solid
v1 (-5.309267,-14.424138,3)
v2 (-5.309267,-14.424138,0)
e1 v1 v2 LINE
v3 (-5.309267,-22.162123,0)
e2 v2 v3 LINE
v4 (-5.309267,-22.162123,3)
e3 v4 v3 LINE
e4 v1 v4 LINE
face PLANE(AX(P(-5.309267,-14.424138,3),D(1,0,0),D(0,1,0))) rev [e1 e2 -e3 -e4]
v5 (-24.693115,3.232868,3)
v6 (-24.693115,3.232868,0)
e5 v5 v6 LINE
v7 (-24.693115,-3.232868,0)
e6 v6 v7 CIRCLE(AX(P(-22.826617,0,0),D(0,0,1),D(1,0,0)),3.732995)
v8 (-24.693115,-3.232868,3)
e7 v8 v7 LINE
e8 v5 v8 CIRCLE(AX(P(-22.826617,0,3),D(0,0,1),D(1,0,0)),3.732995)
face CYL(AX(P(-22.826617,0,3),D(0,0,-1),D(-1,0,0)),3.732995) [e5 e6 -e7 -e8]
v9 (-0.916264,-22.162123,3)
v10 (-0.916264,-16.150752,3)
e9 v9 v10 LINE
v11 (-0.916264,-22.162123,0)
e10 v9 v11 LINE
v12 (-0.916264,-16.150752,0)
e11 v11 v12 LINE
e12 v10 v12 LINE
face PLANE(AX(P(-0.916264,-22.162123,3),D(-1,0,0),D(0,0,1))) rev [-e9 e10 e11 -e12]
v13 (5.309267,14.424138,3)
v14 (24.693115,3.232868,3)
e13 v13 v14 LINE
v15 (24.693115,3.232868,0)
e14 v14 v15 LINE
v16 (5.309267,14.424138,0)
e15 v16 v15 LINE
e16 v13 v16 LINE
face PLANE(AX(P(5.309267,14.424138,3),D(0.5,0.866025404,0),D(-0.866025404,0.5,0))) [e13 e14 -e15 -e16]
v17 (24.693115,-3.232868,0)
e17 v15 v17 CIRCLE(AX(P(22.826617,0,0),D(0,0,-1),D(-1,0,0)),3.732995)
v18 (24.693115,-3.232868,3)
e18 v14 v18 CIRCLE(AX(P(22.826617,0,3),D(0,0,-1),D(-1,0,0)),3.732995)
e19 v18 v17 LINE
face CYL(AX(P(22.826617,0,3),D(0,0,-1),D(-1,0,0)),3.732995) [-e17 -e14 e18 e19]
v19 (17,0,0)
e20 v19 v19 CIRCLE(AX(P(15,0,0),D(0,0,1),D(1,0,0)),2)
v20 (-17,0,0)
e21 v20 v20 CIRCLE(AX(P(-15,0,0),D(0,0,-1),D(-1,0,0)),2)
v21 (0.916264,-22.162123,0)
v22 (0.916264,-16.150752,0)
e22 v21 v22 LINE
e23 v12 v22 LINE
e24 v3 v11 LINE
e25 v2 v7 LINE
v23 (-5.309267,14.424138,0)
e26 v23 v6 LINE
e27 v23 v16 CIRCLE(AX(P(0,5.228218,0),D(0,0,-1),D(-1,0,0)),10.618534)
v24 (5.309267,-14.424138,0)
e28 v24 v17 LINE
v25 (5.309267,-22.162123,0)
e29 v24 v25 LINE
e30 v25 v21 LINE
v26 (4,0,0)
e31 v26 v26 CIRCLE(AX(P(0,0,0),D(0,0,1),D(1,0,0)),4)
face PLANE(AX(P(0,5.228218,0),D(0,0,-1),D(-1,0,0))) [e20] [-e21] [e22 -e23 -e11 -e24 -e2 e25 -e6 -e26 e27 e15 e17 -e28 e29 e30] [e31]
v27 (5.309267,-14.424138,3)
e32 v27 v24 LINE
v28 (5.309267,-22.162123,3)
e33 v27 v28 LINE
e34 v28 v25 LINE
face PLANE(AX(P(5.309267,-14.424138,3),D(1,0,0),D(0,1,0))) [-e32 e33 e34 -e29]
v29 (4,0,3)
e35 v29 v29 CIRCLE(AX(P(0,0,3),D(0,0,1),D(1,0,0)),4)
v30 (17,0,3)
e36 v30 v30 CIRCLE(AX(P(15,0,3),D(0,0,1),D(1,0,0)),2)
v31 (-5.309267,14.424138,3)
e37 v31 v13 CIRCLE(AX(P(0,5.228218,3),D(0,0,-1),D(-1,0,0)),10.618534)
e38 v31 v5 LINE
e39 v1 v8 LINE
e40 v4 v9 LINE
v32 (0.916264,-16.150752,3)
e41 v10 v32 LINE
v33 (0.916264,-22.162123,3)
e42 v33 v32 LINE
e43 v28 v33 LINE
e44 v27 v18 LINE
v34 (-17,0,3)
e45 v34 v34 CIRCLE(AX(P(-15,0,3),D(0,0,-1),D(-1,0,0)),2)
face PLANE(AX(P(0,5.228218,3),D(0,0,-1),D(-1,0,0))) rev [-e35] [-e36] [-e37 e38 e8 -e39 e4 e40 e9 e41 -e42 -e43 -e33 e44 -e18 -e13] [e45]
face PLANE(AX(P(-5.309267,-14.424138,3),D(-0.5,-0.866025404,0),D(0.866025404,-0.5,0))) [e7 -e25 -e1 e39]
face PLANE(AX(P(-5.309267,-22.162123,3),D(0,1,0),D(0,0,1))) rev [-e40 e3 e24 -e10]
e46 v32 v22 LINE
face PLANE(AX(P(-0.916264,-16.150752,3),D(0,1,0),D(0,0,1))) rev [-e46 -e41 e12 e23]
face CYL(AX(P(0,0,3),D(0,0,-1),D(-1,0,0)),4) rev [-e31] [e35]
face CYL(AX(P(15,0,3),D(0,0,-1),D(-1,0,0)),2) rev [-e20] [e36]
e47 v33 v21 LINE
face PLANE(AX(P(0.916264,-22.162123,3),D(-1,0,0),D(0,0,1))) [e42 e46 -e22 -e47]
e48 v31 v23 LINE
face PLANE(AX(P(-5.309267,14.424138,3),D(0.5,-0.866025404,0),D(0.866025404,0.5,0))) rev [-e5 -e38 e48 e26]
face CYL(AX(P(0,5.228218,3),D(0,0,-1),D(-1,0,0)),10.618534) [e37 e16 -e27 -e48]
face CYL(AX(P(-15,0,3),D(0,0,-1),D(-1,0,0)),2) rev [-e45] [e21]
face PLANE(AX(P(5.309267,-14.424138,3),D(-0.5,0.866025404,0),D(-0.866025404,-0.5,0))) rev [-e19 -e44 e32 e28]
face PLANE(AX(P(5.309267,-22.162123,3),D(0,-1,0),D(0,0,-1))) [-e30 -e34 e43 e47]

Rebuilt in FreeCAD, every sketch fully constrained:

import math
import FreeCAD as App
import Part
import Sketcher
from FreeCAD import Vector
Q = App.Units.Quantity

doc = App.newDocument("Part")
params = doc.addObject("Spreadsheet::Sheet", "Params")
for row, (alias, value) in enumerate([
    ("sketch1_diameter", "4 mm"),
    ("sketch1_diameter2", "8 mm"),
    ("pad1_length", "3 mm"),
], start=1):
    params.set(f"A{row}", alias)
    params.set(f"B{row}", "=" + value)
    params.setAlias(f"B{row}", alias)

body = doc.addObject("PartDesign::Body", "Body")

# Sketch on XY plane
sketch1 = body.newObject("Sketcher::SketchObject", "Sketch")
sketch1.AttachmentSupport = (doc.getObject("XY_Plane"), [""])
sketch1.MapMode = "FlatFace"
sketch1.addGeometry(Part.LineSegment(Vector(24.7, 3.2, 0), Vector(5.3, 14.4, 0)), False)
sketch1.addGeometry(Part.ArcOfCircle(Part.Circle(Vector(0, 5.2, 0), Vector(0, 0, 1), 10.6), math.radians(60), math.radians(120)), False)
sketch1.addGeometry(Part.LineSegment(Vector(-5.3, 14.4, 0), Vector(-24.7, 3.2, 0)), False)
sketch1.addGeometry(Part.ArcOfCircle(Part.Circle(Vector(-22.8, 0, 0), Vector(0, 0, 1), 3.7), math.radians(120), math.radians(240)), False)
sketch1.addGeometry(Part.LineSegment(Vector(-24.7, -3.2, 0), Vector(-5.3, -14.4, 0)), False)
sketch1.addGeometry(Part.LineSegment(Vector(-5.3, -14.4, 0), Vector(-5.3, -22.2, 0)), False)
sketch1.addGeometry(Part.LineSegment(Vector(-5.3, -22.2, 0), Vector(-0.9, -22.2, 0)), False)
sketch1.addGeometry(Part.LineSegment(Vector(-0.9, -22.2, 0), Vector(-0.9, -16.2, 0)), False)
sketch1.addGeometry(Part.LineSegment(Vector(-0.9, -16.2, 0), Vector(0.9, -16.2, 0)), False)
sketch1.addGeometry(Part.LineSegment(Vector(0.9, -16.2, 0), Vector(0.9, -22.2, 0)), False)
sketch1.addGeometry(Part.LineSegment(Vector(0.9, -22.2, 0), Vector(5.3, -22.2, 0)), False)
sketch1.addGeometry(Part.LineSegment(Vector(5.3, -22.2, 0), Vector(5.3, -14.4, 0)), False)
sketch1.addGeometry(Part.LineSegment(Vector(5.3, -14.4, 0), Vector(24.7, -3.2, 0)), False)
sketch1.addGeometry(Part.ArcOfCircle(Part.Circle(Vector(22.8, 0, 0), Vector(0, 0, 1), 3.7), math.radians(-60), math.radians(60)), False)
sketch1.addGeometry(Part.Circle(Vector(15, 0, 0), Vector(0, 0, 1), 2), False)
sketch1.addGeometry(Part.Circle(Vector(0, 0, 0), Vector(0, 0, 1), 4), False)
sketch1.addGeometry(Part.Circle(Vector(-15, 0, 0), Vector(0, 0, 1), 2), False)
sketch1.addConstraint(Sketcher.Constraint("Tangent", 0, 2, 1, 1))
sketch1.addConstraint(Sketcher.Constraint("Tangent", 1, 2, 2, 1))
sketch1.addConstraint(Sketcher.Constraint("Tangent", 2, 2, 3, 1))
sketch1.addConstraint(Sketcher.Constraint("Tangent", 3, 2, 4, 1))
sketch1.addConstraint(Sketcher.Constraint("Coincident", 4, 2, 5, 1))
sketch1.addConstraint(Sketcher.Constraint("Coincident", 5, 2, 6, 1))
sketch1.addConstraint(Sketcher.Constraint("Coincident", 6, 2, 7, 1))
sketch1.addConstraint(Sketcher.Constraint("Coincident", 7, 2, 8, 1))
sketch1.addConstraint(Sketcher.Constraint("Coincident", 8, 2, 9, 1))
sketch1.addConstraint(Sketcher.Constraint("Coincident", 9, 2, 10, 1))
sketch1.addConstraint(Sketcher.Constraint("Coincident", 10, 2, 11, 1))
sketch1.addConstraint(Sketcher.Constraint("Coincident", 11, 2, 12, 1))
sketch1.addConstraint(Sketcher.Constraint("Tangent", 12, 2, 13, 1))
sketch1.addConstraint(Sketcher.Constraint("Tangent", 13, 2, 0, 1))
sketch1.addConstraint(Sketcher.Constraint("Vertical", 5))
sketch1.addConstraint(Sketcher.Constraint("Horizontal", 6))
sketch1.addConstraint(Sketcher.Constraint("Vertical", 7))
sketch1.addConstraint(Sketcher.Constraint("Horizontal", 8))
sketch1.addConstraint(Sketcher.Constraint("Vertical", 9))
sketch1.addConstraint(Sketcher.Constraint("Horizontal", 10))
sketch1.addConstraint(Sketcher.Constraint("Vertical", 11))
sketch1.addConstraint(Sketcher.Constraint("Coincident", 15, 3, -1, 1))
sketch1.addConstraint(Sketcher.Constraint("Equal", 3, 13))
sketch1.addConstraint(Sketcher.Constraint("Equal", 14, 16))
sketch1.addConstraint(Sketcher.Constraint("Symmetric", 3, 3, 13, 3, -1, 1))
sketch1.addConstraint(Sketcher.Constraint("Symmetric", 14, 3, 16, 3, -1, 1))
sketch1.addConstraint(Sketcher.Constraint("Symmetric", 0, 2, 4, 2, -1, 1))
sketch1.addConstraint(Sketcher.Constraint("Symmetric", 1, 2, 11, 2, -1, 1))
sketch1.addConstraint(Sketcher.Constraint("Symmetric", 0, 2, 1, 2, -2))
sketch1.addConstraint(Sketcher.Constraint("Symmetric", 6, 2, 9, 2, -2))
sketch1.addConstraint(Sketcher.Constraint("PointOnObject", 14, 3, -1))
sketch1.addConstraint(Sketcher.Constraint("Diameter", 14, 4.0))
sketch1.addConstraint(Sketcher.Constraint("Diameter", 15, 8.0))
sketch1.addConstraint(Sketcher.Constraint("Angle", 0, Q("150 deg")))
sketch1.addConstraint(Sketcher.Constraint("DistanceX", -1, 1, 14, 3, 15.0))
sketch1.addConstraint(Sketcher.Constraint("Radius", 1, 10.618534))
sketch1.addConstraint(Sketcher.Constraint("Radius", 3, 3.732995))
sketch1.addConstraint(Sketcher.Constraint("DistanceY", 7, 1, 7, 2, 6.011372))
sketch1.addConstraint(Sketcher.Constraint("Distance", 0, 22.38254))
sketch1.addConstraint(Sketcher.Constraint("DistanceX", 6, 1, 6, 2, 4.393003))
sketch1.addConstraint(Sketcher.Constraint("DistanceY", 5, 2, 5, 1, 7.737985))
sketch1.setExpression("Constraints[31]", "Params.sketch1_diameter")
sketch1.setExpression("Constraints[32]", "Params.sketch1_diameter2")
pad1 = body.newObject("PartDesign::Pad", "Pad")
pad1.Profile = sketch1
pad1.setExpression("Length", "Params.pad1_length")

doc.recompute()
